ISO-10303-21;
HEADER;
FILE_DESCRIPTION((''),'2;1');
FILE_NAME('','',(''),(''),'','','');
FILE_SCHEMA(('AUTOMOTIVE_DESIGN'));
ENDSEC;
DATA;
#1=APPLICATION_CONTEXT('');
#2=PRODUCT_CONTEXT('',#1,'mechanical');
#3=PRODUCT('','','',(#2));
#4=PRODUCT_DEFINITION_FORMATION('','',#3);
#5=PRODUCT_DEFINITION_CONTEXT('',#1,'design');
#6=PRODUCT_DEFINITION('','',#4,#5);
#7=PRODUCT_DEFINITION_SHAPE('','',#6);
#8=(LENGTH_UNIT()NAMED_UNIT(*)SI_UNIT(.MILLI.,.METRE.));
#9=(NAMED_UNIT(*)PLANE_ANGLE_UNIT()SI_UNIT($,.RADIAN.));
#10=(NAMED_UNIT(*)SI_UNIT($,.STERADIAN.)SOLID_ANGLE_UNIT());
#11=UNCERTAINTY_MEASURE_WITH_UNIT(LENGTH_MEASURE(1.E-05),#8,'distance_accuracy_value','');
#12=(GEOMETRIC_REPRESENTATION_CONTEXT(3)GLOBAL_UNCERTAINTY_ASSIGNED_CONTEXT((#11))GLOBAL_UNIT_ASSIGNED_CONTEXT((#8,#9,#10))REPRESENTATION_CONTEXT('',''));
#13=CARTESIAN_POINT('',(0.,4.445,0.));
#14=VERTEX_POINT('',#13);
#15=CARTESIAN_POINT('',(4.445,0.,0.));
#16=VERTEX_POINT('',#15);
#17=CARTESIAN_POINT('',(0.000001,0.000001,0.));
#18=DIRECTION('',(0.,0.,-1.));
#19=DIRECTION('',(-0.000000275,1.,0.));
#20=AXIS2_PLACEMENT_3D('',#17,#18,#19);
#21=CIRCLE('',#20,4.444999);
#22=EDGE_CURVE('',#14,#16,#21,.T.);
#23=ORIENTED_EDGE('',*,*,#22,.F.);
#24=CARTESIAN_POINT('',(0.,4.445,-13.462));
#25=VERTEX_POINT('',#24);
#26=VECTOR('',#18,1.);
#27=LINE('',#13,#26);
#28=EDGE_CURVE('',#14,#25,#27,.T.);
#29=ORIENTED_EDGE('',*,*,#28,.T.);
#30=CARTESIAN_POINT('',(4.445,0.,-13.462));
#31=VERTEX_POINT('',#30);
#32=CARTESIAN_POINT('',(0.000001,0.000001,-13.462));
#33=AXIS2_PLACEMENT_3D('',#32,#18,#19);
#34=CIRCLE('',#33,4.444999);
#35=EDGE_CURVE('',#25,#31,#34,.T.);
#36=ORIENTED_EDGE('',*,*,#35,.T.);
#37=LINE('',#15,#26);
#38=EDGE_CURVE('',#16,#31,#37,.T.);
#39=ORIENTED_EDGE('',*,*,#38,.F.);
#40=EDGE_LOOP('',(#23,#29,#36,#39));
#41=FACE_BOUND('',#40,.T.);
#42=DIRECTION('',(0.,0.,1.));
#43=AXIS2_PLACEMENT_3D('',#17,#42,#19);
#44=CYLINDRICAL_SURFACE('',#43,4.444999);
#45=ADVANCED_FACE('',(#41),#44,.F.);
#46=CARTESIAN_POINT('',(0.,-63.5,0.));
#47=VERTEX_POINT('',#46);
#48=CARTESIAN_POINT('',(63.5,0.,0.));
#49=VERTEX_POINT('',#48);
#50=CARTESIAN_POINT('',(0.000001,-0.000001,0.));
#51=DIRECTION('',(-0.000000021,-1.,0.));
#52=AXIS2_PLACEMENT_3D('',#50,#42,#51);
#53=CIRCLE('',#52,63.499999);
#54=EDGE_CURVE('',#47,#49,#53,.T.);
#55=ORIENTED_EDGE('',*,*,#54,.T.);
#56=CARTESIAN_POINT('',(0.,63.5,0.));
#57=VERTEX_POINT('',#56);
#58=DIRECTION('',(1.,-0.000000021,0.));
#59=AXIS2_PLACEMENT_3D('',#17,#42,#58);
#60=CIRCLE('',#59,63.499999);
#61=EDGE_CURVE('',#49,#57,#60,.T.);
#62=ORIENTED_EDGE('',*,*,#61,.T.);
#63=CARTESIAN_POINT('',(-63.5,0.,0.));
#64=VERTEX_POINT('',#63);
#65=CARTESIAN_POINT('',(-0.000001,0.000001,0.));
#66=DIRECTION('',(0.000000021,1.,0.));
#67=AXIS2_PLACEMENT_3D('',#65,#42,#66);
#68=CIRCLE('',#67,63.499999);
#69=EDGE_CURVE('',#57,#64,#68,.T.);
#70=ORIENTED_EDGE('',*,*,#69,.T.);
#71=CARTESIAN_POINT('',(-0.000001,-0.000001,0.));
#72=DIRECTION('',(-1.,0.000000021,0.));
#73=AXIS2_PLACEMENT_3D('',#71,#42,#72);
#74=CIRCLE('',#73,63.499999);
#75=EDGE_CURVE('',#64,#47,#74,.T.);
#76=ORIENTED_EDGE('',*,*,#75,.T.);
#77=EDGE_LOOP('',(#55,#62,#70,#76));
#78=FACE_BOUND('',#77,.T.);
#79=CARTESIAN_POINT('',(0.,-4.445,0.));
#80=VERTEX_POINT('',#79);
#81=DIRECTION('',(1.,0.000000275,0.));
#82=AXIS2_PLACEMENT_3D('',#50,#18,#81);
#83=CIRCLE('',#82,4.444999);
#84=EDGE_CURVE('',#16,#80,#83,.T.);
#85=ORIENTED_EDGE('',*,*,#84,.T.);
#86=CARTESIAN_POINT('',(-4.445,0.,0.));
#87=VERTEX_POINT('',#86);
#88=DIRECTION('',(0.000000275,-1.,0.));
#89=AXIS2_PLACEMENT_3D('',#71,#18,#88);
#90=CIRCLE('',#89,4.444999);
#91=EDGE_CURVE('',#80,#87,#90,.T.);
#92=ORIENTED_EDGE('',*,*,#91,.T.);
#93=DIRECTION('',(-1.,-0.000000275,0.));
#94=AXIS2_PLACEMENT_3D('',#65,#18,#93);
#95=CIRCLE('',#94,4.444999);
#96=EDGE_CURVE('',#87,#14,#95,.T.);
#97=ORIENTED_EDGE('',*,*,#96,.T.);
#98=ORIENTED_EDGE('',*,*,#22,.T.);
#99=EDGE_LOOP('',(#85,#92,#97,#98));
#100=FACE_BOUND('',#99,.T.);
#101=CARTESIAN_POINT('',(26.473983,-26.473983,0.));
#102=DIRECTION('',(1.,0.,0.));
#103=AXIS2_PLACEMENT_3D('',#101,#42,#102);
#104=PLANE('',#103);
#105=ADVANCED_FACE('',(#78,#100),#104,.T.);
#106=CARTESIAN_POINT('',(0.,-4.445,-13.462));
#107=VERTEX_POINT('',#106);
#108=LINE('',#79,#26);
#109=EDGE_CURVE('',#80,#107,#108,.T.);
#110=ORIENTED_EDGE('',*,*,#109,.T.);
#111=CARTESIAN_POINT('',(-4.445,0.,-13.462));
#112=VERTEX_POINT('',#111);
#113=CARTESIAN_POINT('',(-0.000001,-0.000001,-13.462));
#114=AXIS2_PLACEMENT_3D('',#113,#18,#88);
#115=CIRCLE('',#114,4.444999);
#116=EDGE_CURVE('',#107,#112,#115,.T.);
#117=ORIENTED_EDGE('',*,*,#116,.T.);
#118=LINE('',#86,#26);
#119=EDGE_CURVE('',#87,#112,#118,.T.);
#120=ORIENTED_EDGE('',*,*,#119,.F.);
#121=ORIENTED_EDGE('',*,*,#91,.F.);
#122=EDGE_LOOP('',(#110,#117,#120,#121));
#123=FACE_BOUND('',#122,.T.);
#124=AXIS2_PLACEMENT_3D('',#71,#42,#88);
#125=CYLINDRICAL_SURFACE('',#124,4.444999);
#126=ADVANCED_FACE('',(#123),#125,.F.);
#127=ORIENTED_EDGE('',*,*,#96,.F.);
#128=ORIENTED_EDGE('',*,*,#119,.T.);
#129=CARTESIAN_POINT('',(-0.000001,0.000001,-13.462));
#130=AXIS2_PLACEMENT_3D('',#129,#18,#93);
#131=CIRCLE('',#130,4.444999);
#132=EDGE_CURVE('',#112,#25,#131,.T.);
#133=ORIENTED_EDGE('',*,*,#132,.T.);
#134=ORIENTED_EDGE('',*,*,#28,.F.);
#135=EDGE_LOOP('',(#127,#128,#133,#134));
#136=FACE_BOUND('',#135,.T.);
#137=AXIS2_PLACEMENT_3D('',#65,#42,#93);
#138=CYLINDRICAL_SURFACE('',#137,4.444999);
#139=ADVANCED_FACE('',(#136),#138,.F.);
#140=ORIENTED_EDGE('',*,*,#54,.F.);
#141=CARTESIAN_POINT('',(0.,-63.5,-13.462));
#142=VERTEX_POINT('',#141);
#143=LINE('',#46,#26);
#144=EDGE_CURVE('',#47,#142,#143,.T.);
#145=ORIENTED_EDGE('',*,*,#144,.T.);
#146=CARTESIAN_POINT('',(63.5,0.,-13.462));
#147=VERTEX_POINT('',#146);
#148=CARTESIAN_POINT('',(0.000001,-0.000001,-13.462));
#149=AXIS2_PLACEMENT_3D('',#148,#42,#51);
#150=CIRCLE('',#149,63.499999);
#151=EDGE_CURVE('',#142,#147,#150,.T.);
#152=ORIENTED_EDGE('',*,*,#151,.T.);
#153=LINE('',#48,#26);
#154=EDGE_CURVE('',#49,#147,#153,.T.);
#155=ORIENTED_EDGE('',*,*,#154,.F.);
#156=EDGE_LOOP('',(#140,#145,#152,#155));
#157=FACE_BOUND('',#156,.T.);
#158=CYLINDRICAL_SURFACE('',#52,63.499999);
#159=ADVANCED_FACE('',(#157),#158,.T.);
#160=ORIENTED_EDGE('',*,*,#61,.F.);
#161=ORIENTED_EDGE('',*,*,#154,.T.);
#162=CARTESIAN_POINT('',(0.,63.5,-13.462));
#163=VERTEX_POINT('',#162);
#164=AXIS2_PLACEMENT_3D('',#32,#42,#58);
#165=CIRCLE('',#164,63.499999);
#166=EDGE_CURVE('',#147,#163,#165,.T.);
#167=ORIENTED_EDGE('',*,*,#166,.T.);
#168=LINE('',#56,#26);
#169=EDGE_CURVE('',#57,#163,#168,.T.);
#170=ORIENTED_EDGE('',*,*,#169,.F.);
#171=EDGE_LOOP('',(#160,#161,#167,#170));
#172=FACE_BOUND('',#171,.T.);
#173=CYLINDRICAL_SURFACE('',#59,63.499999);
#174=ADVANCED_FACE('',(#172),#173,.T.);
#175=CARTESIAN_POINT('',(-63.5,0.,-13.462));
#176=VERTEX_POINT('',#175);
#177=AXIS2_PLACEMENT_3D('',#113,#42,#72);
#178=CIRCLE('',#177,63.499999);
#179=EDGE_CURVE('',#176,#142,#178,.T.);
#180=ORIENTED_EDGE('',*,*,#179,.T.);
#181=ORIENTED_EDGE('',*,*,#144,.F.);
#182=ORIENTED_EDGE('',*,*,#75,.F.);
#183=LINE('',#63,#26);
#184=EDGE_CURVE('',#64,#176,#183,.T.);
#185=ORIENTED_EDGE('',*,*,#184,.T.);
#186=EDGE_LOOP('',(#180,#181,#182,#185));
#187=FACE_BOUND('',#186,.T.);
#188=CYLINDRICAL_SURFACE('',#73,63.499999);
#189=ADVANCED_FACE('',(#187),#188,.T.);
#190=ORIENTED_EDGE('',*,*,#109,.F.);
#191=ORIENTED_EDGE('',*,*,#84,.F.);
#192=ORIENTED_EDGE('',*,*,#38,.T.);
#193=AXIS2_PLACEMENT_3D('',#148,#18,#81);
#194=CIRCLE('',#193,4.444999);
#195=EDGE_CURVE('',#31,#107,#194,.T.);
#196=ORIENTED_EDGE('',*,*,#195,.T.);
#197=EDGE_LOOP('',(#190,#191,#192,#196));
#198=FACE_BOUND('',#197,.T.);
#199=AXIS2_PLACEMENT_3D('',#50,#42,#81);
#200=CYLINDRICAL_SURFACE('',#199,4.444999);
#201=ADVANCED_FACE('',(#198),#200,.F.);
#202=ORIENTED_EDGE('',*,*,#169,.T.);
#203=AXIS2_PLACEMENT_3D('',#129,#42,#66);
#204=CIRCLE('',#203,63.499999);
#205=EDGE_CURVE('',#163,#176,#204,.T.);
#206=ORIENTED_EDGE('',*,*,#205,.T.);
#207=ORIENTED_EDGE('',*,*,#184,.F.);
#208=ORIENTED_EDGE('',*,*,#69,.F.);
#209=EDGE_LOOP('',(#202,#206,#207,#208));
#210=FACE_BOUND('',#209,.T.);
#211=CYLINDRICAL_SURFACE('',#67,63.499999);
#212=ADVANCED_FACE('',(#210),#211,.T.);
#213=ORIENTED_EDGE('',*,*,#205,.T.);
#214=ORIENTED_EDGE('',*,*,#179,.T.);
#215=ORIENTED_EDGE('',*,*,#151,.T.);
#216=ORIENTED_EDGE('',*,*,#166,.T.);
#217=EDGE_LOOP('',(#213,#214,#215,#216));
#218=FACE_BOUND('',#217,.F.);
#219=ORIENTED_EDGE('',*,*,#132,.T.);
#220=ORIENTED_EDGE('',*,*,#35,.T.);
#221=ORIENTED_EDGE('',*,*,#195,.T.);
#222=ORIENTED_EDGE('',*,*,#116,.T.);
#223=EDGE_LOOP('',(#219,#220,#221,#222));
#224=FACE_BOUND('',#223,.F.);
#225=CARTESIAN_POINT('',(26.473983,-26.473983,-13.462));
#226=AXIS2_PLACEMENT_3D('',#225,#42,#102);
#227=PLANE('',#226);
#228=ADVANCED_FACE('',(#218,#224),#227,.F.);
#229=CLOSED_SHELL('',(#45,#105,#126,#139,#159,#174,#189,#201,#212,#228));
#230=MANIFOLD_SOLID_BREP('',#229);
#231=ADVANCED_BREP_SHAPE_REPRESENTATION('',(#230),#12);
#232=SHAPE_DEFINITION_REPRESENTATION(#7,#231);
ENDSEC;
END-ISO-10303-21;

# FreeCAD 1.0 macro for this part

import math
import FreeCAD as App
import Part
import Sketcher
from FreeCAD import Vector
Q = App.Units.Quantity

doc = App.newDocument("Part")
params = doc.addObject("Spreadsheet::Sheet", "Params")
for row, (alias, value) in enumerate([
    ("sketch1_radius", "2.4999999 in"),
    ("sketch1_radius2", "0.175 in"),
    ("pad1_length", "0.53 in"),
], start=1):
    params.set(f"A{row}", alias)
    params.set(f"B{row}", "=" + value)
    params.setAlias(f"B{row}", alias)

body = doc.addObject("PartDesign::Body", "Body")

# Sketch on XY plane
sketch1 = body.newObject("Sketcher::SketchObject", "Sketch")
sketch1.AttachmentSupport = (doc.getObject("XY_Plane"), [""])
sketch1.MapMode = "FlatFace"
sketch1.addGeometry(Part.ArcOfCircle(Part.Circle(Vector(0, 0, 0), Vector(0, 0, 1), 63.5), math.radians(-90), math.radians(0)), False)
sketch1.addGeometry(Part.ArcOfCircle(Part.Circle(Vector(0, 0, 0), Vector(0, 0, 1), 63.5), math.radians(0), math.radians(90)), False)
sketch1.addGeometry(Part.ArcOfCircle(Part.Circle(Vector(0, 0, 0), Vector(0, 0, 1), 63.5), math.radians(90), math.radians(180)), False)
sketch1.addGeometry(Part.ArcOfCircle(Part.Circle(Vector(0, 0, 0), Vector(0, 0, 1), 63.5), math.radians(180), math.radians(270)), False)
sketch1.addGeometry(Part.ArcOfCircle(Part.Circle(Vector(0, 0, 0), Vector(0, 0, 1), 4.4), math.radians(0), math.radians(90)), False)
sketch1.addGeometry(Part.ArcOfCircle(Part.Circle(Vector(0, 0, 0), Vector(0, 0, 1), 4.4), math.radians(-90), math.radians(0)), False)
sketch1.addGeometry(Part.ArcOfCircle(Part.Circle(Vector(0, 0, 0), Vector(0, 0, 1), 4.4), math.radians(180), math.radians(270)), False)
sketch1.addGeometry(Part.ArcOfCircle(Part.Circle(Vector(0, 0, 0), Vector(0, 0, 1), 4.4), math.radians(90), math.radians(180)), False)
sketch1.addConstraint(Sketcher.Constraint("Tangent", 0, 2, 1, 1))
sketch1.addConstraint(Sketcher.Constraint("Tangent", 1, 2, 2, 1))
sketch1.addConstraint(Sketcher.Constraint("Tangent", 2, 2, 3, 1))
sketch1.addConstraint(Sketcher.Constraint("Tangent", 3, 2, 0, 1))
sketch1.addConstraint(Sketcher.Constraint("Tangent", 4, 1, 5, 2))
sketch1.addConstraint(Sketcher.Constraint("Tangent", 5, 1, 6, 2))
sketch1.addConstraint(Sketcher.Constraint("Tangent", 6, 1, 7, 2))
sketch1.addConstraint(Sketcher.Constraint("Tangent", 7, 1, 4, 2))
sketch1.addConstraint(Sketcher.Constraint("Coincident", 0, 3, -1, 1))
sketch1.addConstraint(Sketcher.Constraint("Coincident", 4, 3, -1, 1))
sketch1.addConstraint(Sketcher.Constraint("Equal", 0, 1))
sketch1.addConstraint(Sketcher.Constraint("Equal", 4, 5))
sketch1.addConstraint(Sketcher.Constraint("PointOnObject", 0, 2, -1))
sketch1.addConstraint(Sketcher.Constraint("PointOnObject", 1, 2, -2))
sketch1.addConstraint(Sketcher.Constraint("PointOnObject", 2, 2, -1))
sketch1.addConstraint(Sketcher.Constraint("PointOnObject", 3, 2, -2))
sketch1.addConstraint(Sketcher.Constraint("PointOnObject", 4, 1, -1))
sketch1.addConstraint(Sketcher.Constraint("PointOnObject", 5, 1, -2))
sketch1.addConstraint(Sketcher.Constraint("PointOnObject", 6, 1, -1))
sketch1.addConstraint(Sketcher.Constraint("PointOnObject", 7, 1, -2))
sketch1.addConstraint(Sketcher.Constraint("Radius", 0, Q("2.4999999 in")))
sketch1.addConstraint(Sketcher.Constraint("Radius", 4, Q("0.175 in")))
sketch1.setExpression("Constraints[20]", "Params.sketch1_radius")
sketch1.setExpression("Constraints[21]", "Params.sketch1_radius2")
pad1 = body.newObject("PartDesign::Pad", "Pad")
pad1.Profile = sketch1
pad1.setExpression("Length", "Params.pad1_length")
pad1.Reversed = True

doc.recompute()
